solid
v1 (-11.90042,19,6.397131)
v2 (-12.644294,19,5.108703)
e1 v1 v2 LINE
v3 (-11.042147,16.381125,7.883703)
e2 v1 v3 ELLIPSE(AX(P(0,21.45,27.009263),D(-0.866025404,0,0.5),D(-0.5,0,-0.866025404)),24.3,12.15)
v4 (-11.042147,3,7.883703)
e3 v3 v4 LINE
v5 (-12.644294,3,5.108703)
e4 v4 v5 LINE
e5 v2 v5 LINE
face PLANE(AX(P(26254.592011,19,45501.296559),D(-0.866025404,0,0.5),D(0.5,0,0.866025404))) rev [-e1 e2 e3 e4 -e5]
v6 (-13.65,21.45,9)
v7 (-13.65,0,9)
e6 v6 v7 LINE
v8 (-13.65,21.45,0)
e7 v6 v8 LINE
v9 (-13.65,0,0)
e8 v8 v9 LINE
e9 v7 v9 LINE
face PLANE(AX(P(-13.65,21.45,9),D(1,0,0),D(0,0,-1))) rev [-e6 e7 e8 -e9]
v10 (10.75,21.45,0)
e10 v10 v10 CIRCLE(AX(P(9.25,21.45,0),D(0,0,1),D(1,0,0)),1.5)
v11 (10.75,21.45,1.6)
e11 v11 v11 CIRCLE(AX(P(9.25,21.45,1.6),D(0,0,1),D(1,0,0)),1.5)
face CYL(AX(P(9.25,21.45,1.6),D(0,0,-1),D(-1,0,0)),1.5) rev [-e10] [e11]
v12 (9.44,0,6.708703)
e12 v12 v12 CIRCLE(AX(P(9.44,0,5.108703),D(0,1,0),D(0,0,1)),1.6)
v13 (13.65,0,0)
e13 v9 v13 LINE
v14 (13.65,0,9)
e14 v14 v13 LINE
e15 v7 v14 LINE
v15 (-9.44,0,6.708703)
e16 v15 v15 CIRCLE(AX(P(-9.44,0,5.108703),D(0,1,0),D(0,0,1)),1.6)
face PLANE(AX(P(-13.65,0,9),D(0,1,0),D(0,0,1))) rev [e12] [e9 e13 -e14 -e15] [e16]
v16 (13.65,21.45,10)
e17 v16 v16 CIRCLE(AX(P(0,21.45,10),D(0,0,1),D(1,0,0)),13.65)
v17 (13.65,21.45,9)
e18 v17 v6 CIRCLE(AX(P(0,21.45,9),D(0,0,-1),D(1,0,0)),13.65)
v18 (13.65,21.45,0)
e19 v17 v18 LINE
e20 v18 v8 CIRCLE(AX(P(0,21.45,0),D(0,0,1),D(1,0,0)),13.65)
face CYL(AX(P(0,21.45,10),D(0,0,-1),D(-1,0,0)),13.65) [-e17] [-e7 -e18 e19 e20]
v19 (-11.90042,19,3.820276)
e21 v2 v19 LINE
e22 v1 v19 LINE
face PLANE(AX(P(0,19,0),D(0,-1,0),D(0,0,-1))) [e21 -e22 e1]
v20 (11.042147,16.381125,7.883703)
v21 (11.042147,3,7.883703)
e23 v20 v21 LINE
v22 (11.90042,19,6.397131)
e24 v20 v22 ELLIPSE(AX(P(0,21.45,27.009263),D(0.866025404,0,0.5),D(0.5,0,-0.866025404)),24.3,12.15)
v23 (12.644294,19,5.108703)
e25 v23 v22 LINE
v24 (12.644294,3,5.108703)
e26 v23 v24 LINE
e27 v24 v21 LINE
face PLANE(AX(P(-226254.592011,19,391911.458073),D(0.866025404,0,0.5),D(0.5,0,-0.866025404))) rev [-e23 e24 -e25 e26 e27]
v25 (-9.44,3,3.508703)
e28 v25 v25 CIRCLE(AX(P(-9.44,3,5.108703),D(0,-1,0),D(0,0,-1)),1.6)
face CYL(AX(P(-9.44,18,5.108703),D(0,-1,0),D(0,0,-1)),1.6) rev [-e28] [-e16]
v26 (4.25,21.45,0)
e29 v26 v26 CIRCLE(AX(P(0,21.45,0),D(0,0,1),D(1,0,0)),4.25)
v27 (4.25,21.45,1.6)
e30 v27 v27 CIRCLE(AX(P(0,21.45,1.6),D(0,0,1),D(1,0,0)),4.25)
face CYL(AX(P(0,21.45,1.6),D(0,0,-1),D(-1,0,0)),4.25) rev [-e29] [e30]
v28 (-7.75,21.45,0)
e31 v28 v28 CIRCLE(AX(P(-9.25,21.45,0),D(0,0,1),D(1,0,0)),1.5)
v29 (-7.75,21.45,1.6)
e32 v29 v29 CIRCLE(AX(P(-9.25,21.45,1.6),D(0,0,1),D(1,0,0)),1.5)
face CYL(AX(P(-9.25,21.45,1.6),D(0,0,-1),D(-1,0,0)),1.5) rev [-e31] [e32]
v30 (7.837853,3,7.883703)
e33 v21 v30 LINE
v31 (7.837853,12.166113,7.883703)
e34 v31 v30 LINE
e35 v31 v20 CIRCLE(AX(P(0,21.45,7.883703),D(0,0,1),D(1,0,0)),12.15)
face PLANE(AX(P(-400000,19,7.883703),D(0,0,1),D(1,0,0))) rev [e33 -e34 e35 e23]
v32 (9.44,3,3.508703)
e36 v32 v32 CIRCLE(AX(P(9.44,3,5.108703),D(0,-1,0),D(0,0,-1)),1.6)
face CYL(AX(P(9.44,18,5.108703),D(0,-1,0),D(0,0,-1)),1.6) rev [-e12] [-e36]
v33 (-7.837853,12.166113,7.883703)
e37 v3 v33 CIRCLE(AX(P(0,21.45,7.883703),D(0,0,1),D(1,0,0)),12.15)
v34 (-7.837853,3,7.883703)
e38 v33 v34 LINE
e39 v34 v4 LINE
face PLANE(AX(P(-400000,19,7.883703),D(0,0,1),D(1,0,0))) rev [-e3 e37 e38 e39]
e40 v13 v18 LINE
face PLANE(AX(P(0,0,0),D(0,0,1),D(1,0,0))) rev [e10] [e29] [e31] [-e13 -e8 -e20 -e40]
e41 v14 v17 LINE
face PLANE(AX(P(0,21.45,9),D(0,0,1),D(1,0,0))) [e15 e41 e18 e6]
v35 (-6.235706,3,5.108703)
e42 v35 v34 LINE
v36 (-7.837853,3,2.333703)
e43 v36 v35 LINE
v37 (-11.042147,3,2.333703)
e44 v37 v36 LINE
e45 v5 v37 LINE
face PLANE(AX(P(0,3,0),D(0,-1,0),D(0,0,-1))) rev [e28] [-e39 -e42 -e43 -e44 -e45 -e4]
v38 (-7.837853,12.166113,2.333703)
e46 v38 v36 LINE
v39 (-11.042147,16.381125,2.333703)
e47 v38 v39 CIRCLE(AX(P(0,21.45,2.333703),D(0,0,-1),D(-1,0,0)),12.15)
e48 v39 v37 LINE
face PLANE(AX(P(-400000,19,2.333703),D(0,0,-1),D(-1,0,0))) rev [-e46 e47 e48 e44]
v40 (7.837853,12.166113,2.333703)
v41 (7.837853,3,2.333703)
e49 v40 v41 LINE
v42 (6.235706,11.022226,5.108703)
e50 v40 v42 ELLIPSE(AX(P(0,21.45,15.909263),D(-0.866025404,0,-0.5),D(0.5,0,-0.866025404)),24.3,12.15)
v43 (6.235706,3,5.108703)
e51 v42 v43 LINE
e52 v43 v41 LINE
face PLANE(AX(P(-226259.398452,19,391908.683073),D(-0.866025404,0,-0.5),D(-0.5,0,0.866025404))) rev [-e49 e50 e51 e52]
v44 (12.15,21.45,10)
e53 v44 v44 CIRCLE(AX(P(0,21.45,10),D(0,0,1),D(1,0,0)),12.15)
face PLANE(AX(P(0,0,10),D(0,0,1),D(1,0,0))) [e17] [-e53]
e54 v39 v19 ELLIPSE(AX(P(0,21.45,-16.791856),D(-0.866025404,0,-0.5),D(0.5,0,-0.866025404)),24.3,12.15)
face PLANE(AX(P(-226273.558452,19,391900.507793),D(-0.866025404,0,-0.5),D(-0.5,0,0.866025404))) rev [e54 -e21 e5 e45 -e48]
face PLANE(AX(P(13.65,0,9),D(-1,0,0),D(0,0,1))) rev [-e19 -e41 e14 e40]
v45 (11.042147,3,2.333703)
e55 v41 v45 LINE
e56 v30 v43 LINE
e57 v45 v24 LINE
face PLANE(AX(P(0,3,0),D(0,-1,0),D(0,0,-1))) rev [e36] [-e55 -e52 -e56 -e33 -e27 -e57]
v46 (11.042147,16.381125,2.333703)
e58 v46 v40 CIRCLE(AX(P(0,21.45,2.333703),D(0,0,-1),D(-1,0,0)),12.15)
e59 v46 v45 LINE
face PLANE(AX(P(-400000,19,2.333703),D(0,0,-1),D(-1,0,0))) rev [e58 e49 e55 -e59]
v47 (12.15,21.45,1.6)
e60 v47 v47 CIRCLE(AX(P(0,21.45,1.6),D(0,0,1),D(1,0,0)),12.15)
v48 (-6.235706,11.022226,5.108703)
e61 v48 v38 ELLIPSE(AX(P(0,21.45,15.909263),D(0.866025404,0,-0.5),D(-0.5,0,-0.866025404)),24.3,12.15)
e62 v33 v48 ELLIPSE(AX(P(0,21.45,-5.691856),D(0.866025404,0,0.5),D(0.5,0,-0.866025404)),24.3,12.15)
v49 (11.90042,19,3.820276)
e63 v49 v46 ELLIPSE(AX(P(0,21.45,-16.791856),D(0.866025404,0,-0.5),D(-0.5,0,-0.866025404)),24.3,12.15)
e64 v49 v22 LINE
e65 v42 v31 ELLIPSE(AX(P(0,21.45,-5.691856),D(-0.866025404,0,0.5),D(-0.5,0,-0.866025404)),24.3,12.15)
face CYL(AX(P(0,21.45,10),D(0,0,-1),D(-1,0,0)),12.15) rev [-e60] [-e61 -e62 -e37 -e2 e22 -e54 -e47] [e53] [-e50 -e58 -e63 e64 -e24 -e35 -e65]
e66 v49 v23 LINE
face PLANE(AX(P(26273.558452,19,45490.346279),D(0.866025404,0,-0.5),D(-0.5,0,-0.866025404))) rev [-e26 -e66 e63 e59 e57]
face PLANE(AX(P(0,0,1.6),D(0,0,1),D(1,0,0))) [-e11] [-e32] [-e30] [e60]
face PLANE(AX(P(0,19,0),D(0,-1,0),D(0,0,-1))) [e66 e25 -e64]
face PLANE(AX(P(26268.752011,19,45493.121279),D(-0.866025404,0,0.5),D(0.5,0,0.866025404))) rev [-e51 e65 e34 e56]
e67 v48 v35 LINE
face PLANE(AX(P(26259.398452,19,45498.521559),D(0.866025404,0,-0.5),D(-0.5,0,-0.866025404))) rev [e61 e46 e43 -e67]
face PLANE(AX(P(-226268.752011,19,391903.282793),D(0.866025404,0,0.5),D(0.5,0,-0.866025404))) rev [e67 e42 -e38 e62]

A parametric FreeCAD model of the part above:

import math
import FreeCAD as App
import Part
import Sketcher
from FreeCAD import Vector
Q = App.Units.Quantity


def add_polygon(sketch, points):
    """Adds a closed chain of lines whose ends are joined by coincident constraints."""
    first, n = sketch.GeometryCount, len(points)
    for a, b in zip(points, points[1:] + points[:1]):
        sketch.addGeometry(Part.LineSegment(App.Vector(*a, 0), App.Vector(*b, 0)), False)
    for i in range(n):
        sketch.addConstraint(Sketcher.Constraint("Coincident", first + i, 2, first + (i + 1) % n, 1))

doc = App.newDocument("Part")
body = doc.addObject("PartDesign::Body", "Body")

# Sketch on XY plane
sketch1 = body.newObject("Sketcher::SketchObject", "Sketch")
sketch1.AttachmentSupport = (doc.getObject("XY_Plane"), [""])
sketch1.MapMode = "FlatFace"
sketch1.addGeometry(Part.Circle(Vector(0, 21, 0), Vector(0, 0, 1), 14), False)
sketch1.addGeometry(Part.Circle(Vector(0, 21, 0), Vector(0, 0, 1), 12), False)
sketch1.addConstraint(Sketcher.Constraint("Coincident", 1, 3, 0, 3))
sketch1.addConstraint(Sketcher.Constraint("PointOnObject", 0, 3, -2))
sketch1.addConstraint(Sketcher.Constraint("Diameter", 0, Q("27.3 mm")))
sketch1.addConstraint(Sketcher.Constraint("Diameter", 1, Q("24.3 mm")))
sketch1.addConstraint(Sketcher.Constraint("DistanceY", -1, 1, 0, 3, Q("21.45 mm")))
pad1 = body.newObject("PartDesign::Pad", "Pad")
pad1.Profile = sketch1
pad1.Length = 10

# Sketch on XY plane
sketch2 = body.newObject("Sketcher::SketchObject", "Sketch001")
sketch2.AttachmentSupport = (doc.getObject("XY_Plane"), [""])
sketch2.MapMode = "FlatFace"
sketch2.addGeometry(Part.Circle(Vector(0, 21.4, 0), Vector(0, 0, 1), 12.2), False)
sketch2.addGeometry(Part.Circle(Vector(-9.2, 21.4, 0), Vector(0, 0, 1), 1.5), False)
sketch2.addGeometry(Part.Circle(Vector(0, 21.4, 0), Vector(0, 0, 1), 4.2), False)
sketch2.addGeometry(Part.Circle(Vector(9.2, 21.4, 0), Vector(0, 0, 1), 1.5), False)
sketch2.addConstraint(Sketcher.Constraint("Coincident", 2, 3, 0, 3))
sketch2.addConstraint(Sketcher.Constraint("Equal", 1, 3))
sketch2.addConstraint(Sketcher.Constraint("Symmetric", 1, 3, 3, 3, -2))
sketch2.addConstraint(Sketcher.Constraint("PointOnObject", 0, 3, -2))
sketch2.addConstraint(Sketcher.Constraint("Horizontal", 0, 3, 1, 3))
sketch2.addConstraint(Sketcher.Constraint("Diameter", 1, Q("3 mm")))
sketch2.addConstraint(Sketcher.Constraint("Diameter", 0, Q("24.3 mm")))
sketch2.addConstraint(Sketcher.Constraint("Diameter", 2, Q("8.5 mm")))
sketch2.addConstraint(Sketcher.Constraint("DistanceX", 1, 3, 3, 3, Q("18.5 mm")))
sketch2.addConstraint(Sketcher.Constraint("DistanceY", -1, 1, 0, 3, Q("21.45 mm")))
pad2 = body.newObject("PartDesign::Pad", "Pad001")
pad2.Profile = sketch2
pad2.Length = 1.6

# Sketch on XY plane
sketch3 = body.newObject("Sketcher::SketchObject", "Sketch002")
sketch3.AttachmentSupport = (doc.getObject("XY_Plane"), [""])
sketch3.MapMode = "FlatFace"
sketch3.addGeometry(Part.LineSegment(Vector(-14, 21, 0), Vector(-14, 0, 0)), False)
sketch3.addGeometry(Part.LineSegment(Vector(-14, 0, 0), Vector(14, 0, 0)), False)
sketch3.addGeometry(Part.LineSegment(Vector(14, 0, 0), Vector(14, 21, 0)), False)
sketch3.addGeometry(Part.ArcOfCircle(Part.Circle(Vector(0, 21, 0), Vector(0, 0, 1), 14), math.radians(180), math.radians(360)), False)
sketch3.addConstraint(Sketcher.Constraint("Coincident", 0, 2, 1, 1))
sketch3.addConstraint(Sketcher.Constraint("Coincident", 1, 2, 2, 1))
sketch3.addConstraint(Sketcher.Constraint("Tangent", 2, 2, 3, 2))
sketch3.addConstraint(Sketcher.Constraint("Tangent", 3, 1, 0, 1))
sketch3.addConstraint(Sketcher.Constraint("Vertical", 0))
sketch3.addConstraint(Sketcher.Constraint("Horizontal", 1))
sketch3.addConstraint(Sketcher.Constraint("Vertical", 2))
sketch3.addConstraint(Sketcher.Constraint("Symmetric", 0, 2, 1, 2, -1, 1))
sketch3.addConstraint(Sketcher.Constraint("Radius", 3, Q("13.65 mm")))
sketch3.addConstraint(Sketcher.Constraint("DistanceY", 0, 2, 0, 1, Q("21.45 mm")))
pad3 = body.newObject("PartDesign::Pad", "Pad002")
pad3.Profile = sketch3
pad3.Length = 9

# Sketch on XZ plane
sketch4 = body.newObject("Sketcher::SketchObject", "Sketch003")
sketch4.AttachmentSupport = (doc.getObject("XZ_Plane"), [""])
sketch4.MapMode = "FlatFace"
sketch4.addGeometry(Part.Circle(Vector(-9.4, 5.1, 0), Vector(0, 0, 1), 1.6), False)
sketch4.addGeometry(Part.Circle(Vector(9.4, 5.1, 0), Vector(0, 0, 1), 1.6), False)
sketch4.addConstraint(Sketcher.Constraint("Equal", 0, 1))
sketch4.addConstraint(Sketcher.Constraint("Symmetric", 0, 3, 1, 3, -2))
sketch4.addConstraint(Sketcher.Constraint("Diameter", 0, Q("3.2 mm")))
sketch4.addConstraint(Sketcher.Constraint("DistanceX", 0, 3, -1, 1, Q("9.44 mm")))
sketch4.addConstraint(Sketcher.Constraint("DistanceY", -1, 1, 0, 3, Q("5.108703 mm")))
pocket1 = body.newObject("PartDesign::Pocket", "Pocket")
pocket1.Profile = sketch4
pocket1.Length = 18

# Sketch on XZ plane
sketch5 = body.newObject("Sketcher::SketchObject", "Sketch004")
sketch5.AttachmentSupport = (doc.getObject("XZ_Plane"), [""])
sketch5.MapMode = "FlatFace"
sketch5.AttachmentOffset = App.Placement(Vector(0, 0, -3), App.Rotation())
add_polygon(sketch5, [(-7.8, 2.3), (-11, 2.3), (-12.6, 5.1), (-11, 7.9), (-7.8, 7.9), (-6.2, 5.1)])  # lines 0-5
add_polygon(sketch5, [(11, 2.3), (7.8, 2.3), (6.2, 5.1), (7.8, 7.9), (11, 7.9), (12.6, 5.1)])  # lines 6-11
sketch5.addConstraint(Sketcher.Constraint("Horizontal", 0))
sketch5.addConstraint(Sketcher.Constraint("Horizontal", 3))
sketch5.addConstraint(Sketcher.Constraint("Horizontal", 6))
sketch5.addConstraint(Sketcher.Constraint("Horizontal", 9))
sketch5.addConstraint(Sketcher.Constraint("Symmetric", 5, 2, 6, 2, -2))
sketch5.addConstraint(Sketcher.Constraint("Symmetric", 4, 2, 7, 2, -2))
sketch5.addConstraint(Sketcher.Constraint("Symmetric", 3, 2, 8, 2, -2))
sketch5.addConstraint(Sketcher.Constraint("Symmetric", 1, 2, 10, 2, -2))
sketch5.addConstraint(Sketcher.Constraint("Parallel", 1, 4))
sketch5.addConstraint(Sketcher.Constraint("Parallel", 2, 5))
sketch5.addConstraint(Sketcher.Constraint("Parallel", 4, 7))
sketch5.addConstraint(Sketcher.Constraint("Parallel", 7, 10))
sketch5.addConstraint(Sketcher.Constraint("Parallel", 8, 11))
sketch5.addConstraint(Sketcher.Constraint("Horizontal", 1, 2, 4, 2))
sketch5.addConstraint(Sketcher.Constraint("Vertical", 0, 2, 2, 2))
sketch5.addConstraint(Sketcher.Constraint("Angle", 1, Q("120 deg")))
sketch5.addConstraint(Sketcher.Constraint("DistanceY", 0, 2, 2, 2, Q("5.55 mm")))
sketch5.addConstraint(Sketcher.Constraint("DistanceX", 0, 2, 6, 2, Q("18.88 mm")))
sketch5.addConstraint(Sketcher.Constraint("DistanceX", 0, 2, 0, 1, Q("3.204294 mm")))
sketch5.addConstraint(Sketcher.Constraint("DistanceY", -1, 1, 0, 2, Q("2.333703 mm")))
pocket2 = body.newObject("PartDesign::Pocket", "Pocket001")
pocket2.Profile = sketch5
pocket2.Length = 16

doc.recompute()
